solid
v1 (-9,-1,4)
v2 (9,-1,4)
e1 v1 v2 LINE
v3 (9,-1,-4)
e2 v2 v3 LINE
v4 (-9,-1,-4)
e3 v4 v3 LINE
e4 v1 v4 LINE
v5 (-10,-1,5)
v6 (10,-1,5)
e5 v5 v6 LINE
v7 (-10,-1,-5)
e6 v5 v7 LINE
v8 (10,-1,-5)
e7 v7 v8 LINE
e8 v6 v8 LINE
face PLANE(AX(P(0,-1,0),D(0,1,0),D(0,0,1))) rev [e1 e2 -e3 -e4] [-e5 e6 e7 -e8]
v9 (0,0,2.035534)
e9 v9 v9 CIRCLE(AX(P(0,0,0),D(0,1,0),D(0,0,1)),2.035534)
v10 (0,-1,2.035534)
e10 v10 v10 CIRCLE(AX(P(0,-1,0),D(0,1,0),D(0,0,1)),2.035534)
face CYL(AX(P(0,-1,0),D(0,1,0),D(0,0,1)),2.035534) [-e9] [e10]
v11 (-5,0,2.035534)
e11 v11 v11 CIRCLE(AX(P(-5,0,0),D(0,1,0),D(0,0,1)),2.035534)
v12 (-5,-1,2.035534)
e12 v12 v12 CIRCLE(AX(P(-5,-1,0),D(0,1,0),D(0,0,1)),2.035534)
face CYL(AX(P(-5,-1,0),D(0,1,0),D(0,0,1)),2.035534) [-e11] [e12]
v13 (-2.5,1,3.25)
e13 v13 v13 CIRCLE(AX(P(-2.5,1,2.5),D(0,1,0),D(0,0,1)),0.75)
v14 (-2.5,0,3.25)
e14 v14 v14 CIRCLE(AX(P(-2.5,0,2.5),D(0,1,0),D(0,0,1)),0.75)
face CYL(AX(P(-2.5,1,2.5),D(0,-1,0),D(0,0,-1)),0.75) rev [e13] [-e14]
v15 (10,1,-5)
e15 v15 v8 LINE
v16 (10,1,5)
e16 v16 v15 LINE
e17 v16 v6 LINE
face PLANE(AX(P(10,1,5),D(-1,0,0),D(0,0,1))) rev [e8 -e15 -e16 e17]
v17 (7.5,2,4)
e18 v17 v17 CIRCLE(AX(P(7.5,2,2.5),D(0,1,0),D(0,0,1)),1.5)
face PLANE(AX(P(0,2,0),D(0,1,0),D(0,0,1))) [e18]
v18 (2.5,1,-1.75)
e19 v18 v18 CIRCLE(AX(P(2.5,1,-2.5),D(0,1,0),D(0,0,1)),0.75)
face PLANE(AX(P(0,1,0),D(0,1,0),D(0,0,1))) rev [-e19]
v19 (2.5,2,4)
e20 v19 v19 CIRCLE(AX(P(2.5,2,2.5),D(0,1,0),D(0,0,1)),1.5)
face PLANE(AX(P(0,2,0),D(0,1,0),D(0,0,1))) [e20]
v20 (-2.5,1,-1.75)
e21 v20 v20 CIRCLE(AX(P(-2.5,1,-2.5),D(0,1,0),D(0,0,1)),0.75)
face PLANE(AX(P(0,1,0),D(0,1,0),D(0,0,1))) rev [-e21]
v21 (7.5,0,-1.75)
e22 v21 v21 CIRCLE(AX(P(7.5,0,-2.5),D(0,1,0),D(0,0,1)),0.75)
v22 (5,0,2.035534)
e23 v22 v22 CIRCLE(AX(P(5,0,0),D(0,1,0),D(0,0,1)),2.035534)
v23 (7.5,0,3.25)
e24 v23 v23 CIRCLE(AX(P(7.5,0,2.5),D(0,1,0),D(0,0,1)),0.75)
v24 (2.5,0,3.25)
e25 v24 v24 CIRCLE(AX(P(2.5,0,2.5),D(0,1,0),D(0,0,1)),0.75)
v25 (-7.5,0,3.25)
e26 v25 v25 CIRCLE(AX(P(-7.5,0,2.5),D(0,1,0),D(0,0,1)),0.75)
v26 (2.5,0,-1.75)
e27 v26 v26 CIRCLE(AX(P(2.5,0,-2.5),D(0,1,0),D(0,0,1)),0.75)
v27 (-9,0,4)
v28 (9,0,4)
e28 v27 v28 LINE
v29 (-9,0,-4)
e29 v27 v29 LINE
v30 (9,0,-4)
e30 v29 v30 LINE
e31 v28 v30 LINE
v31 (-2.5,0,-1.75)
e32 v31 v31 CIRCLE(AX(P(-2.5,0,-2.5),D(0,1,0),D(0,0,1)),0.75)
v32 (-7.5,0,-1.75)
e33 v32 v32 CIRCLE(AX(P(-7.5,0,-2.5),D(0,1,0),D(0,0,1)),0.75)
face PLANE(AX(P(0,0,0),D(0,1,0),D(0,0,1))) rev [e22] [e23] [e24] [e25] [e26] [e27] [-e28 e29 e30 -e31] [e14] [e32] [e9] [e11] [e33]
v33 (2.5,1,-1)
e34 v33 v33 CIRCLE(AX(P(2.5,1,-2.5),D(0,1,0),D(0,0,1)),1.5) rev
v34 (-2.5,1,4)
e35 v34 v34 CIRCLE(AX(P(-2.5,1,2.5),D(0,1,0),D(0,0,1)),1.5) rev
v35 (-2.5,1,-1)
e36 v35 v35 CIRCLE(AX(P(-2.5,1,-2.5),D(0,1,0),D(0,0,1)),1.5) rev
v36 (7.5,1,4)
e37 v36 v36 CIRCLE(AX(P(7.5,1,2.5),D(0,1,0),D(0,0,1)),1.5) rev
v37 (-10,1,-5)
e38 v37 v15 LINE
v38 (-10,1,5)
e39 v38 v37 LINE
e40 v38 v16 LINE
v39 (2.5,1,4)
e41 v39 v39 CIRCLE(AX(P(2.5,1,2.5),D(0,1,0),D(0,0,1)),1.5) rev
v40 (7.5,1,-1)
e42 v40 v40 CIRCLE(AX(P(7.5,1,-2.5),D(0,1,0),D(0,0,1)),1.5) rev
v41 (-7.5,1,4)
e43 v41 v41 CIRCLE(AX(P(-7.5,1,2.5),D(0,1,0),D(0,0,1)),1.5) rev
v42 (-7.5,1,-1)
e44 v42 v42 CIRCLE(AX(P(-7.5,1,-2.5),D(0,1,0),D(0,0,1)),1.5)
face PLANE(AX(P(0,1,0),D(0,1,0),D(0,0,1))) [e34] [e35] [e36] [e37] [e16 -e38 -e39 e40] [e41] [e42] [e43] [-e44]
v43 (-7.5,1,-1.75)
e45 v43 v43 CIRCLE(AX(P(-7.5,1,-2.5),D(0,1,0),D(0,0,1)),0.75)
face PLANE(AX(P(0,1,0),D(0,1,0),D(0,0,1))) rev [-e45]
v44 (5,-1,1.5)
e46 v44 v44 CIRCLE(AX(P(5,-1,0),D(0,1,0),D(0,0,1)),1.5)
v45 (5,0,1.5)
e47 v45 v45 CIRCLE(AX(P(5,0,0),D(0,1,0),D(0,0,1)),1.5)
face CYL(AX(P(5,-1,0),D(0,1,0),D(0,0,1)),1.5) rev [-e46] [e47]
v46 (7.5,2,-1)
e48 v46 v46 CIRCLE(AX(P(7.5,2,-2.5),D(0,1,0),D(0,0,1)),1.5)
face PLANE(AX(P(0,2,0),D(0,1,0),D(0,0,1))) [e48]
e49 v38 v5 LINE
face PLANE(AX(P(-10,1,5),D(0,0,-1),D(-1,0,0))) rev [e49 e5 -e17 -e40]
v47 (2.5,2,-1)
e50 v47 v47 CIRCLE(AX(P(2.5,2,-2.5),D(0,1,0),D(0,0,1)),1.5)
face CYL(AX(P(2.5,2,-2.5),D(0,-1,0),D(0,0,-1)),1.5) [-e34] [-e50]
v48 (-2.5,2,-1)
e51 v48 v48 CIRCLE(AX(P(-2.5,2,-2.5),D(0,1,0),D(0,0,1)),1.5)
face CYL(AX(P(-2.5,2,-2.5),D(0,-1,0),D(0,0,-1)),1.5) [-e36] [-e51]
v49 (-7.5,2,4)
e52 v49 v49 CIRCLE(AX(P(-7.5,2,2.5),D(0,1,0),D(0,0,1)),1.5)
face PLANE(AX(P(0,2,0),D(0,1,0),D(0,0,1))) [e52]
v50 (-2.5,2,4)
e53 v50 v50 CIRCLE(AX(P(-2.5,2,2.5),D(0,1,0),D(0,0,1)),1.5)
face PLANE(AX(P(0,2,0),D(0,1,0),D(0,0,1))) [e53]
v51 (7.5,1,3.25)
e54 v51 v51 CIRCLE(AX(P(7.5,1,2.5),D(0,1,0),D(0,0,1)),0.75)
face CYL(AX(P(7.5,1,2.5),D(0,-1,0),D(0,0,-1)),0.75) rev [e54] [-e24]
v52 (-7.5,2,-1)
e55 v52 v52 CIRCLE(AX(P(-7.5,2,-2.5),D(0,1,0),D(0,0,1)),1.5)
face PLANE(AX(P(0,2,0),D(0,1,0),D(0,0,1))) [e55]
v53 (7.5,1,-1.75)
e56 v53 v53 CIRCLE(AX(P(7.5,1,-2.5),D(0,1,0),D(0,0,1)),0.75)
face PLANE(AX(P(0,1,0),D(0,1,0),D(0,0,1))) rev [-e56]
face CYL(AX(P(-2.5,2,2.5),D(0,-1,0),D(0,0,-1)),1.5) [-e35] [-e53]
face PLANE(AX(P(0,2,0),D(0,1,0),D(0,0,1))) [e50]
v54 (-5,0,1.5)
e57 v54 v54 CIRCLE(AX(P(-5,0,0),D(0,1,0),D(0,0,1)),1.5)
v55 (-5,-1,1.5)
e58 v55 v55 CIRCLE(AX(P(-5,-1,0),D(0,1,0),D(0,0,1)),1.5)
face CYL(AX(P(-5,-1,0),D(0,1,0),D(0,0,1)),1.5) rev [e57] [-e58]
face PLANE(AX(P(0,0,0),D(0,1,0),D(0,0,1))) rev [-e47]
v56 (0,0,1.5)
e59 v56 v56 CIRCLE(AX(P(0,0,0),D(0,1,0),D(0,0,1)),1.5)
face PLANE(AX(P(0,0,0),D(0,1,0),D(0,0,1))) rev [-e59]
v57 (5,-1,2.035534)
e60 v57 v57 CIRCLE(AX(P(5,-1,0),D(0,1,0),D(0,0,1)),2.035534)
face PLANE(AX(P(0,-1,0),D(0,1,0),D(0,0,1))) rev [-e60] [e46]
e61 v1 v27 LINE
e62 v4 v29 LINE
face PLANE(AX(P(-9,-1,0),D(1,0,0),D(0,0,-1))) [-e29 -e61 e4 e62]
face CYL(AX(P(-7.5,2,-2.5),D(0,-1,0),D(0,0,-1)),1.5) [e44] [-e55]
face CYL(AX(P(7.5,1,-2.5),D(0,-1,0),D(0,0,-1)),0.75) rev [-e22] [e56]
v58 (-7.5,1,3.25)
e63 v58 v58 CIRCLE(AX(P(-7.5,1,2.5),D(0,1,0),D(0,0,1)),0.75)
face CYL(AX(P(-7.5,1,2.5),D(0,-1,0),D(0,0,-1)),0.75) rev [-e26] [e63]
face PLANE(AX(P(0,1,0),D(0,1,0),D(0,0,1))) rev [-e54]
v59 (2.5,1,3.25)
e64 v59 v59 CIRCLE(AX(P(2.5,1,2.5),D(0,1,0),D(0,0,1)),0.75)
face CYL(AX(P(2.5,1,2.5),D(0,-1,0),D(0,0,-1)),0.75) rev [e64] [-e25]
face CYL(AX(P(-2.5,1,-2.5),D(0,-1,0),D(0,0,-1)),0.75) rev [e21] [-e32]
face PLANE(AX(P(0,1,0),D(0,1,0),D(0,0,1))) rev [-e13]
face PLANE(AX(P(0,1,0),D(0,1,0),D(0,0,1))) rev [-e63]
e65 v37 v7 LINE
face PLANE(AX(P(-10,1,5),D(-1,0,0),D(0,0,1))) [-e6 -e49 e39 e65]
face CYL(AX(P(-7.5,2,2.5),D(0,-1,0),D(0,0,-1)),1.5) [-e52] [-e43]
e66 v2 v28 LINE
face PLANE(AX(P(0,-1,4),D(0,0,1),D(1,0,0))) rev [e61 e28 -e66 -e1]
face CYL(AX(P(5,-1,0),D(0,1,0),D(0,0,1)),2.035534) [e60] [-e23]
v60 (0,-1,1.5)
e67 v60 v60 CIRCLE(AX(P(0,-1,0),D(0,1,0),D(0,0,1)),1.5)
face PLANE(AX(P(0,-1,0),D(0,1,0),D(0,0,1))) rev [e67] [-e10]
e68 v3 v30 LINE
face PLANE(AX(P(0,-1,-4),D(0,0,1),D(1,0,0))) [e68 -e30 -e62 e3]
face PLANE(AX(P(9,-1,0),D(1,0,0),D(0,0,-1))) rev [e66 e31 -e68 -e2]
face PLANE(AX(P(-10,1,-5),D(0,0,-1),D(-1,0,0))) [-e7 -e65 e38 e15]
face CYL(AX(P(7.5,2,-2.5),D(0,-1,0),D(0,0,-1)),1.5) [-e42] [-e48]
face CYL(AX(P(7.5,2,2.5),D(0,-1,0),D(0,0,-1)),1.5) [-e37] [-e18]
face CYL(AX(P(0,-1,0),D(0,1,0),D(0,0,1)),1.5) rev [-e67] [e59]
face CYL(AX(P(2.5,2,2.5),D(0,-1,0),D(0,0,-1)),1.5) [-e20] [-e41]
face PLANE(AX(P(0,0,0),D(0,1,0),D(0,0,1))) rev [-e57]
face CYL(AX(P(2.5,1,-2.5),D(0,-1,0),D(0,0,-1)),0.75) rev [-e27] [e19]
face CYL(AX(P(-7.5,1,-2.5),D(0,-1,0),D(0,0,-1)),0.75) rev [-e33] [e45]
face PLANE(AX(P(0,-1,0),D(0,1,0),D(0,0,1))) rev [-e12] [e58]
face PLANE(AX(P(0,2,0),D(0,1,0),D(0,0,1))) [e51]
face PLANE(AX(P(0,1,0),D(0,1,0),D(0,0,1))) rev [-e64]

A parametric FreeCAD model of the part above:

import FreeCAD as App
import Part
import Sketcher


def add_polygon(sketch, points):
    """Adds a closed chain of lines whose ends are joined by coincident constraints."""
    first, n = sketch.GeometryCount, len(points)
    for a, b in zip(points, points[1:] + points[:1]):
        sketch.addGeometry(Part.LineSegment(App.Vector(*a, 0), App.Vector(*b, 0)), False)
    for i in range(n):
        sketch.addConstraint(Sketcher.Constraint("Coincident", first + i, 2, first + (i + 1) % n, 1))

doc = App.newDocument("Part")
body = doc.addObject("PartDesign::Body", "Body")
body.AllowCompound = True

sketch1 = body.newObject("Sketcher::SketchObject", "Sketch")
sketch1.AttachmentSupport = (doc.getObject("XZ_Plane"), [""])
sketch1.MapMode = "FlatFace"
sketch1.addGeometry(Part.Circle(App.Vector(-7.5, -2.5, 0), App.Vector(0, 0, 1), 1.5), False)
sketch1.addGeometry(Part.Circle(App.Vector(-2.5, -2.5, 0), App.Vector(0, 0, 1), 1.5), False)
sketch1.addGeometry(Part.Circle(App.Vector(2.5, -2.5, 0), App.Vector(0, 0, 1), 1.5), False)
sketch1.addGeometry(Part.Circle(App.Vector(7.5, -2.5, 0), App.Vector(0, 0, 1), 1.5), False)
sketch1.addGeometry(Part.Circle(App.Vector(7.5, 2.5, 0), App.Vector(0, 0, 1), 1.5), False)
sketch1.addGeometry(Part.Circle(App.Vector(2.5, 2.5, 0), App.Vector(0, 0, 1), 1.5), False)
sketch1.addGeometry(Part.Circle(App.Vector(-2.5, 2.5, 0), App.Vector(0, 0, 1), 1.5), False)
sketch1.addGeometry(Part.Circle(App.Vector(-7.5, 2.5, 0), App.Vector(0, 0, 1), 1.5), False)
sketch1.addConstraint(Sketcher.Constraint("Equal", 0, 1))
sketch1.addConstraint(Sketcher.Constraint("Equal", 1, 2))
sketch1.addConstraint(Sketcher.Constraint("Equal", 2, 3))
sketch1.addConstraint(Sketcher.Constraint("Equal", 3, 4))
sketch1.addConstraint(Sketcher.Constraint("Equal", 4, 5))
sketch1.addConstraint(Sketcher.Constraint("Equal", 5, 6))
sketch1.addConstraint(Sketcher.Constraint("Equal", 6, 7))
sketch1.addConstraint(Sketcher.Constraint("Symmetric", 0, 3, 4, 3, -1, 1))
sketch1.addConstraint(Sketcher.Constraint("Symmetric", 1, 3, 5, 3, -1, 1))
sketch1.addConstraint(Sketcher.Constraint("Symmetric", 2, 3, 6, 3, -1, 1))
sketch1.addConstraint(Sketcher.Constraint("Symmetric", 3, 3, 7, 3, -1, 1))
sketch1.addConstraint(Sketcher.Constraint("Symmetric", 1, 3, 2, 3, -2))
sketch1.addConstraint(Sketcher.Constraint("Symmetric", 0, 3, 3, 3, -2))
sketch1.addConstraint(Sketcher.Constraint("Horizontal", 0, 3, 1, 3))
sketch1.addConstraint(Sketcher.Constraint("Diameter", 0, 3.0))
sketch1.addConstraint(Sketcher.Constraint("DistanceX", 0, 3, 1, 3, 5.0))
sketch1.addConstraint(Sketcher.Constraint("DistanceX", 1, 3, 2, 3, 5.0))
sketch1.addConstraint(Sketcher.Constraint("DistanceY", 3, 3, 4, 3, 5.0))
pad1 = body.newObject("PartDesign::Pad", "Pad")
pad1.Profile = sketch1
pad1.Length = 2
pad1.Reversed = True

sketch2 = body.newObject("Sketcher::SketchObject", "Sketch001")
sketch2.AttachmentSupport = (doc.getObject("XZ_Plane"), [""])
sketch2.MapMode = "FlatFace"
add_polygon(sketch2, [(-10, -5), (-10, 5), (10, 5), (10, -5)])
sketch2.addConstraint(Sketcher.Constraint("Vertical", 0))
sketch2.addConstraint(Sketcher.Constraint("Horizontal", 1))
sketch2.addConstraint(Sketcher.Constraint("Vertical", 2))
sketch2.addConstraint(Sketcher.Constraint("Horizontal", 3))
sketch2.addConstraint(Sketcher.Constraint("Symmetric", 0, 2, 2, 2, -1, 1))
sketch2.addConstraint(Sketcher.Constraint("DistanceX", 1, 1, 1, 2, 20.0))
sketch2.addConstraint(Sketcher.Constraint("DistanceY", 0, 1, 0, 2, 10.0))
pad2 = body.newObject("PartDesign::Pad", "Pad001")
pad2.Profile = sketch2
pad2.Length = 1
pad2.Reversed = True

sketch3 = body.newObject("Sketcher::SketchObject", "Sketch002")
sketch3.AttachmentSupport = (doc.getObject("XZ_Plane"), [""])
sketch3.MapMode = "FlatFace"
sketch3.addGeometry(Part.Circle(App.Vector(-7.5, -2.5, 0), App.Vector(0, 0, 1), 0.8), False)
sketch3.addGeometry(Part.Circle(App.Vector(-7.5, 2.5, 0), App.Vector(0, 0, 1), 0.8), False)
sketch3.addGeometry(Part.Circle(App.Vector(-2.5, 2.5, 0), App.Vector(0, 0, 1), 0.8), False)
sketch3.addGeometry(Part.Circle(App.Vector(-2.5, -2.5, 0), App.Vector(0, 0, 1), 0.8), False)
sketch3.addGeometry(Part.Circle(App.Vector(2.5, 2.5, 0), App.Vector(0, 0, 1), 0.8), False)
sketch3.addGeometry(Part.Circle(App.Vector(2.5, -2.5, 0), App.Vector(0, 0, 1), 0.8), False)
sketch3.addGeometry(Part.Circle(App.Vector(7.5, 2.5, 0), App.Vector(0, 0, 1), 0.8), False)
sketch3.addGeometry(Part.Circle(App.Vector(7.5, -2.5, 0), App.Vector(0, 0, 1), 0.8), False)
sketch3.addConstraint(Sketcher.Constraint("Equal", 0, 1))
sketch3.addConstraint(Sketcher.Constraint("Equal", 1, 2))
sketch3.addConstraint(Sketcher.Constraint("Equal", 2, 3))
sketch3.addConstraint(Sketcher.Constraint("Equal", 3, 4))
sketch3.addConstraint(Sketcher.Constraint("Equal", 4, 5))
sketch3.addConstraint(Sketcher.Constraint("Equal", 5, 6))
sketch3.addConstraint(Sketcher.Constraint("Equal", 6, 7))
sketch3.addConstraint(Sketcher.Constraint("Symmetric", 3, 3, 4, 3, -1, 1))
sketch3.addConstraint(Sketcher.Constraint("Symmetric", 2, 3, 5, 3, -1, 1))
sketch3.addConstraint(Sketcher.Constraint("Symmetric", 0, 3, 6, 3, -1, 1))
sketch3.addConstraint(Sketcher.Constraint("Symmetric", 1, 3, 7, 3, -1, 1))
sketch3.addConstraint(Sketcher.Constraint("Symmetric", 2, 3, 4, 3, -2))
sketch3.addConstraint(Sketcher.Constraint("Symmetric", 1, 3, 6, 3, -2))
sketch3.addConstraint(Sketcher.Constraint("Horizontal", 1, 3, 2, 3))
sketch3.addConstraint(Sketcher.Constraint("Diameter", 0, 1.5))
sketch3.addConstraint(Sketcher.Constraint("DistanceY", 0, 3, 1, 3, 5.0))
sketch3.addConstraint(Sketcher.Constraint("DistanceX", 1, 3, 2, 3, 5.0))
sketch3.addConstraint(Sketcher.Constraint("DistanceX", 2, 3, 4, 3, 5.0))
pocket1 = body.newObject("PartDesign::Pocket", "Pocket")
pocket1.Profile = sketch3
pocket1.Length = 1

sketch4 = body.newObject("Sketcher::SketchObject", "Sketch003")
sketch4.AttachmentSupport = (doc.getObject("XZ_Plane"), [""])
sketch4.MapMode = "FlatFace"
add_polygon(sketch4, [(-10, -5), (-10, 5), (10, 5), (10, -5)])
add_polygon(sketch4, [(9, 4), (-9, 4), (-9, -4), (9, -4)])
sketch4.addGeometry(Part.Circle(App.Vector(5, 0, 0), App.Vector(0, 0, 1), 2), False)
sketch4.addGeometry(Part.Circle(App.Vector(5, 0, 0), App.Vector(0, 0, 1), 1.5), False)
sketch4.addGeometry(Part.Circle(App.Vector(0, 0, 0), App.Vector(0, 0, 1), 2), False)
sketch4.addGeometry(Part.Circle(App.Vector(0, 0, 0), App.Vector(0, 0, 1), 1.5), False)
sketch4.addGeometry(Part.Circle(App.Vector(-5, 0, 0), App.Vector(0, 0, 1), 2), False)
sketch4.addGeometry(Part.Circle(App.Vector(-5, 0, 0), App.Vector(0, 0, 1), 1.5), False)
sketch4.addConstraint(Sketcher.Constraint("Vertical", 0))
sketch4.addConstraint(Sketcher.Constraint("Horizontal", 1))
sketch4.addConstraint(Sketcher.Constraint("Vertical", 2))
sketch4.addConstraint(Sketcher.Constraint("Horizontal", 3))
sketch4.addConstraint(Sketcher.Constraint("Horizontal", 4))
sketch4.addConstraint(Sketcher.Constraint("Vertical", 5))
sketch4.addConstraint(Sketcher.Constraint("Horizontal", 6))
sketch4.addConstraint(Sketcher.Constraint("Vertical", 7))
sketch4.addConstraint(Sketcher.Constraint("Coincident", 10, 3, -1, 1))
sketch4.addConstraint(Sketcher.Constraint("Coincident", 11, 3, -1, 1))
sketch4.addConstraint(Sketcher.Constraint("Coincident", 9, 3, 8, 3))
sketch4.addConstraint(Sketcher.Constraint("Coincident", 13, 3, 12, 3))
sketch4.addConstraint(Sketcher.Constraint("Equal", 8, 10))
sketch4.addConstraint(Sketcher.Constraint("Equal", 9, 11))
sketch4.addConstraint(Sketcher.Constraint("Equal", 10, 12))
sketch4.addConstraint(Sketcher.Constraint("Equal", 11, 13))
sketch4.addConstraint(Sketcher.Constraint("Symmetric", 8, 3, 12, 3, -1, 1))
sketch4.addConstraint(Sketcher.Constraint("Symmetric", 0, 2, 2, 2, -1, 1))
sketch4.addConstraint(Sketcher.Constraint("Symmetric", 4, 2, 6, 2, -1, 1))
sketch4.addConstraint(Sketcher.Constraint("PointOnObject", 8, 3, -1))
sketch4.addConstraint(Sketcher.Constraint("Diameter", 9, 3.0))
sketch4.addConstraint(Sketcher.Constraint("DistanceX", 1, 1, 1, 2, 20.0))
sketch4.addConstraint(Sketcher.Constraint("DistanceX", 4, 2, 4, 1, 18.0))
sketch4.addConstraint(Sketcher.Constraint("DistanceY", 0, 1, 0, 2, 10.0))
sketch4.addConstraint(Sketcher.Constraint("DistanceY", 5, 2, 5, 1, 8.0))
sketch4.addConstraint(Sketcher.Constraint("DistanceX", -1, 1, 8, 3, 5.0))
sketch4.addConstraint(Sketcher.Constraint("Diameter", 8, 4.071068))
pad3 = body.newObject("PartDesign::Pad", "Pad002")
pad3.Profile = sketch4
pad3.Length = 1

doc.recompute()
